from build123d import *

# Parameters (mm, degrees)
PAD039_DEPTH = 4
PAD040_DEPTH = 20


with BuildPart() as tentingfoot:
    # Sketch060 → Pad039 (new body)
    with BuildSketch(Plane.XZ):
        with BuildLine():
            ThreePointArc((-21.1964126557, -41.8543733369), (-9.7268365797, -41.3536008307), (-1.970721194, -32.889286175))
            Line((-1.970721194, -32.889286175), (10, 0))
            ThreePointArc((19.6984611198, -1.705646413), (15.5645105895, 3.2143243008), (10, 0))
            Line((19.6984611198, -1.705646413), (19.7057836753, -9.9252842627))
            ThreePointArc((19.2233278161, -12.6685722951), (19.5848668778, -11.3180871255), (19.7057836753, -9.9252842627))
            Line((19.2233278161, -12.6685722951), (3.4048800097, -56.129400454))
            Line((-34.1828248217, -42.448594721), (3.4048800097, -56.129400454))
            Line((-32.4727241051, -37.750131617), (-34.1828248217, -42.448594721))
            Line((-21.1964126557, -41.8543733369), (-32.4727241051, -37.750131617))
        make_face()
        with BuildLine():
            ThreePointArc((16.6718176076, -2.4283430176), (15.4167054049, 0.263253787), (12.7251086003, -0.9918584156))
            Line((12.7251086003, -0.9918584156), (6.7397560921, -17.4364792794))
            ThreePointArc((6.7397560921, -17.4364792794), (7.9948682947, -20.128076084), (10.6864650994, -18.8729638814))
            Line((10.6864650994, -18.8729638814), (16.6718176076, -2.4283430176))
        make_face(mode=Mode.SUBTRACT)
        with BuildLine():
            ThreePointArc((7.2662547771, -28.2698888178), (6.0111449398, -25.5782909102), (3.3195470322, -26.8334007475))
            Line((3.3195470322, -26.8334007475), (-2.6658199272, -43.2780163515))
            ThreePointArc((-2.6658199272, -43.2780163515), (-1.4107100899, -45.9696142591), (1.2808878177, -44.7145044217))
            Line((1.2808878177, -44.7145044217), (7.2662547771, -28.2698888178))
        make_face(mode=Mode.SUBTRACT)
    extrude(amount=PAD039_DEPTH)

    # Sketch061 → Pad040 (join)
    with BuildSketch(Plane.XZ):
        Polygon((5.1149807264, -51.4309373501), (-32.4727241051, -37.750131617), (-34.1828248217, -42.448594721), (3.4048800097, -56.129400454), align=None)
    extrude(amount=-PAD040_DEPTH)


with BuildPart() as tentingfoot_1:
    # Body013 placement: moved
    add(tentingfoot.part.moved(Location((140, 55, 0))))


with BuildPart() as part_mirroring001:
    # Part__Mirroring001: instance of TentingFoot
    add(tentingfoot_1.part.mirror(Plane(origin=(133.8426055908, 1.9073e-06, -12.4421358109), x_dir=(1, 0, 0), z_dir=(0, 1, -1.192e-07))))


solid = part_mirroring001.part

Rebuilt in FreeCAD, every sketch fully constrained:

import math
import FreeCAD as App
import Part
import Sketcher
Q = App.Units.Quantity


def add_polygon(sketch, points):
    """Adds a closed chain of lines whose ends are joined by coincident constraints."""
    first, n = sketch.GeometryCount, len(points)
    for a, b in zip(points, points[1:] + points[:1]):
        sketch.addGeometry(Part.LineSegment(App.Vector(*a, 0), App.Vector(*b, 0)), False)
    for i in range(n):
        sketch.addConstraint(Sketcher.Constraint("Coincident", first + i, 2, first + (i + 1) % n, 1))

doc = App.newDocument("Part")
body = doc.addObject("PartDesign::Body", "Body")

sketch1 = body.newObject("Sketcher::SketchObject", "Sketch")
sketch1.AttachmentSupport = (doc.getObject("XZ_Plane"), [""])
sketch1.MapMode = "FlatFace"
sketch1.addGeometry([
    Part.ArcOfCircle(Part.Circle(App.Vector(-16.1, -27.8, 0), App.Vector(0, 0, 1), 15), math.radians(-110), math.radians(-20)),
    Part.LineSegment(App.Vector(-21.2, -41.9, 0), App.Vector(-32.5, -37.8, 0)),
    Part.LineSegment(App.Vector(-32.5, -37.8, 0), App.Vector(-34.2, -42.4, 0)),
    Part.LineSegment(App.Vector(-34.2, -42.4, 0), App.Vector(3.4, -56.1, 0)),
    Part.LineSegment(App.Vector(3.4, -56.1, 0), App.Vector(19.2, -12.7, 0)),
    Part.ArcOfCircle(Part.Circle(App.Vector(11.7, -9.9, 0), App.Vector(0, 0, 1), 8), math.radians(-20), math.radians(0)),
    Part.LineSegment(App.Vector(19.7, -9.9, 0), App.Vector(19.7, -1.7, 0)),
    Part.ArcOfCircle(Part.Circle(App.Vector(14.7, -1.7, 0), App.Vector(0, 0, 1), 5), math.radians(0), math.radians(160)),
    Part.LineSegment(App.Vector(10, 0, 0), App.Vector(-2, -32.9, 0)),
    Part.LineSegment(App.Vector(7.3, -28.3, 0), App.Vector(1.3, -44.7, 0)),
    Part.ArcOfCircle(Part.Circle(App.Vector(-0.7, -44, 0), App.Vector(0, 0, 1), 2.1), math.radians(160), math.radians(340)),
    Part.LineSegment(App.Vector(-2.7, -43.3, 0), App.Vector(3.3, -26.8, 0)),
    Part.ArcOfCircle(Part.Circle(App.Vector(5.3, -27.6, 0), App.Vector(0, 0, 1), 2.1), math.radians(-20), math.radians(160)),
    Part.LineSegment(App.Vector(16.7, -2.4, 0), App.Vector(10.7, -18.9, 0)),
    Part.ArcOfCircle(Part.Circle(App.Vector(8.7, -18.2, 0), App.Vector(0, 0, 1), 2.1), math.radians(160), math.radians(340)),
    Part.LineSegment(App.Vector(6.7, -17.4, 0), App.Vector(12.7, -1, 0)),
    Part.ArcOfCircle(Part.Circle(App.Vector(14.7, -1.7, 0), App.Vector(0, 0, 1), 2.1), math.radians(-20), math.radians(160)),
], False)
sketch1.addConstraint([
    Sketcher.Constraint("Tangent", 0, 1, 1, 1),
    Sketcher.Constraint("Coincident", 1, 2, 2, 1),
    Sketcher.Constraint("Coincident", 2, 2, 3, 1),
    Sketcher.Constraint("Coincident", 3, 2, 4, 1),
    Sketcher.Constraint("Tangent", 4, 2, 5, 1),
    Sketcher.Constraint("Tangent", 5, 2, 6, 1),
    Sketcher.Constraint("Tangent", 6, 2, 7, 1),
    Sketcher.Constraint("Tangent", 7, 2, 8, 1),
    Sketcher.Constraint("Tangent", 8, 2, 0, 2),
    Sketcher.Constraint("Tangent", 9, 2, 10, 2),
    Sketcher.Constraint("Tangent", 10, 1, 11, 1),
    Sketcher.Constraint("Tangent", 11, 2, 12, 2),
    Sketcher.Constraint("Tangent", 12, 1, 9, 1),
    Sketcher.Constraint("Tangent", 13, 2, 14, 2),
    Sketcher.Constraint("Tangent", 14, 1, 15, 1),
    Sketcher.Constraint("Tangent", 15, 2, 16, 2),
    Sketcher.Constraint("Tangent", 16, 1, 13, 1),
    Sketcher.Constraint("Coincident", 16, 3, 7, 3),
    Sketcher.Constraint("Equal", 10, 12),
    Sketcher.Constraint("Equal", 12, 14),
    Sketcher.Constraint("Equal", 14, 16),
    Sketcher.Constraint("PointOnObject", 7, 2, -1),
    Sketcher.Constraint("Perpendicular", 1, 2),
    Sketcher.Constraint("Perpendicular", 2, 3),
    Sketcher.Constraint("Perpendicular", 3, 4),
    Sketcher.Constraint("Parallel", 4, 8),
    Sketcher.Constraint("Parallel", 8, 9),
    Sketcher.Constraint("Parallel", 11, 13),
    Sketcher.Constraint("Equal", 11, 13),
    Sketcher.Constraint("Radius", 0, Q("15 mm")),
    Sketcher.Constraint("Radius", 5, Q("8 mm")),
    Sketcher.Constraint("Radius", 7, Q("5 mm")),
    Sketcher.Constraint("Radius", 10, Q("2.1 mm")),
    Sketcher.Constraint("Angle", 1, Q("160 deg")),
    Sketcher.Constraint("Distance", 1, Q("12 mm")),
    Sketcher.Constraint("Distance", 2, Q("5 mm")),
    Sketcher.Constraint("Distance", 3, Q("40 mm")),
    Sketcher.Constraint("DistanceX", -1, 1, 7, 2, Q("10 mm")),
    Sketcher.Constraint("Distance", 9, Q("17.5 mm")),
    Sketcher.Constraint("DistanceX", -1, 1, 12, 3, Q("5.292901 mm")),
    Sketcher.Constraint("DistanceY", 3, 2, -1, 1, Q("56.1294 mm")),
    Sketcher.Constraint("DistanceY", 11, 2, -1, 1, Q("26.833401 mm")),
    Sketcher.Constraint("DistanceX", 0, 1, 5, 3, Q("32.9022 mm")),
])
pad1 = body.newObject("PartDesign::Pad", "Pad")
pad1.Profile = sketch1
pad1.Length = 4

sketch2 = body.newObject("Sketcher::SketchObject", "Sketch001")
sketch2.AttachmentSupport = (doc.getObject("XZ_Plane"), [""])
sketch2.MapMode = "FlatFace"
add_polygon(sketch2, [(5.1, -51.4), (-32.5, -37.8), (-34.2, -42.4), (3.4, -56.1)])
sketch2.addConstraint([
    Sketcher.Constraint("Perpendicular", 0, 1),
    Sketcher.Constraint("Perpendicular", 1, 2),
    Sketcher.Constraint("Perpendicular", 2, 3),
    Sketcher.Constraint("Angle", 0, Q("160 deg")),
    Sketcher.Constraint("Distance", 0, Q("40 mm")),
    Sketcher.Constraint("Distance", 1, Q("5 mm")),
    Sketcher.Constraint("DistanceY", 2, 2, -1, 1, Q("56.1294 mm")),
    Sketcher.Constraint("DistanceX", -1, 1, 2, 2, Q("3.40488 mm")),
])
pad2 = body.newObject("PartDesign::Pad", "Pad001")
pad2.Profile = sketch2
pad2.Length = 20
pad2.Reversed = True
body2 = doc.addObject("PartDesign::Body", "Body001")
doc.recompute()

body.Placement = App.Placement(App.Vector(140, 55, 0), App.Rotation(App.Vector(0, 0, 1), 0))
boolean = body2.newObject("PartDesign::Boolean", "Boolean")
boolean.Type = "Fuse"
boolean.addObjects([body])
body3 = doc.addObject("PartDesign::Body", "Body002")
doc.recompute()

mirroring = doc.addObject("Part::Mirroring", "Mirroring")
mirroring.Source = body2
mirroring.Base = App.Vector(133.842606, 0.000002, -12.442136)
mirroring.Normal = App.Vector(0, 1, -0.000000119)
body3.BaseFeature = mirroring
doc.recompute()
body2.Visibility = False
mirroring.Visibility = False

doc.recompute()
